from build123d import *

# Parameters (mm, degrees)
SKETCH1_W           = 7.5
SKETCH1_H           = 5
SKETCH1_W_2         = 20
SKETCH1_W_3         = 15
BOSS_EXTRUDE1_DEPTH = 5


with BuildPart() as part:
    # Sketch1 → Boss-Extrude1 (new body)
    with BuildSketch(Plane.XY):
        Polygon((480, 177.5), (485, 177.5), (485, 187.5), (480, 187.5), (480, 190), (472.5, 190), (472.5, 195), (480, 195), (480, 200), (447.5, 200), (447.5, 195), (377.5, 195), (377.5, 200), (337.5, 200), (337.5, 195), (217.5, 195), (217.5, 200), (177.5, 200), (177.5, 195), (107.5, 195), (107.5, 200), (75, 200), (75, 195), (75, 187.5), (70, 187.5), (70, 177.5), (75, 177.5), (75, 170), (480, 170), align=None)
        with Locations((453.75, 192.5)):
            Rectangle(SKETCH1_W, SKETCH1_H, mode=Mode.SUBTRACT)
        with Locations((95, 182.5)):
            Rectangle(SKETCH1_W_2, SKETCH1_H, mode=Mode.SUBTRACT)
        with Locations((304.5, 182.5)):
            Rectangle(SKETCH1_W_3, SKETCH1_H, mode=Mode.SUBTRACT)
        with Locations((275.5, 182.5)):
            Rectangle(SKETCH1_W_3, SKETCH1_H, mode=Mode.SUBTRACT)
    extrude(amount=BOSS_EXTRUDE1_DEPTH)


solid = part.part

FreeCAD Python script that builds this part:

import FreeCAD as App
import Part
import Sketcher
Q = App.Units.Quantity

doc = App.newDocument("Part")
body = doc.addObject("PartDesign::Body", "Body")

# Sketch on XY plane
sketch1 = body.newObject("Sketcher::SketchObject", "Sketch")
sketch1.AttachmentSupport = (doc.getObject("XY_Plane"), [""])
sketch1.MapMode = "FlatFace"
sketch1.addGeometry([
    Part.LineSegment(App.Vector(480, 177.5, 0), App.Vector(485, 177.5, 0)),  # 0
    Part.LineSegment(App.Vector(485, 177.5, 0), App.Vector(485, 187.5, 0)),  # 1
    Part.LineSegment(App.Vector(485, 187.5, 0), App.Vector(480, 187.5, 0)),  # 2
    Part.LineSegment(App.Vector(480, 187.5, 0), App.Vector(480, 190, 0)),  # 3
    Part.LineSegment(App.Vector(480, 190, 0), App.Vector(472.5, 190, 0)),  # 4
    Part.LineSegment(App.Vector(472.5, 190, 0), App.Vector(472.5, 195, 0)),  # 5
    Part.LineSegment(App.Vector(472.5, 195, 0), App.Vector(480, 195, 0)),  # 6
    Part.LineSegment(App.Vector(480, 195, 0), App.Vector(480, 200, 0)),  # 7
    Part.LineSegment(App.Vector(480, 200, 0), App.Vector(447.5, 200, 0)),  # 8
    Part.LineSegment(App.Vector(447.5, 200, 0), App.Vector(447.5, 195, 0)),  # 9
    Part.LineSegment(App.Vector(447.5, 195, 0), App.Vector(377.5, 195, 0)),  # 10
    Part.LineSegment(App.Vector(377.5, 195, 0), App.Vector(377.5, 200, 0)),  # 11
    Part.LineSegment(App.Vector(377.5, 200, 0), App.Vector(337.5, 200, 0)),  # 12
    Part.LineSegment(App.Vector(337.5, 200, 0), App.Vector(337.5, 195, 0)),  # 13
    Part.LineSegment(App.Vector(337.5, 195, 0), App.Vector(217.5, 195, 0)),  # 14
    Part.LineSegment(App.Vector(217.5, 195, 0), App.Vector(217.5, 200, 0)),  # 15
    Part.LineSegment(App.Vector(217.5, 200, 0), App.Vector(177.5, 200, 0)),  # 16
    Part.LineSegment(App.Vector(177.5, 200, 0), App.Vector(177.5, 195, 0)),  # 17
    Part.LineSegment(App.Vector(177.5, 195, 0), App.Vector(107.5, 195, 0)),  # 18
    Part.LineSegment(App.Vector(107.5, 195, 0), App.Vector(107.5, 200, 0)),  # 19
    Part.LineSegment(App.Vector(107.5, 200, 0), App.Vector(75, 200, 0)),  # 20
    Part.LineSegment(App.Vector(75, 200, 0), App.Vector(75, 187.5, 0)),  # 21
    Part.LineSegment(App.Vector(75, 187.5, 0), App.Vector(70, 187.5, 0)),  # 22
    Part.LineSegment(App.Vector(70, 187.5, 0), App.Vector(70, 177.5, 0)),  # 23
    Part.LineSegment(App.Vector(70, 177.5, 0), App.Vector(75, 177.5, 0)),  # 24
    Part.LineSegment(App.Vector(75, 177.5, 0), App.Vector(75, 170, 0)),  # 25
    Part.LineSegment(App.Vector(75, 170, 0), App.Vector(480, 170, 0)),  # 26
    Part.LineSegment(App.Vector(480, 170, 0), App.Vector(480, 177.5, 0)),  # 27
    Part.LineSegment(App.Vector(105, 180, 0), App.Vector(85, 180, 0)),  # 28
    Part.LineSegment(App.Vector(85, 180, 0), App.Vector(85, 185, 0)),  # 29
    Part.LineSegment(App.Vector(85, 185, 0), App.Vector(105, 185, 0)),  # 30
    Part.LineSegment(App.Vector(105, 185, 0), App.Vector(105, 180, 0)),  # 31
    Part.LineSegment(App.Vector(283, 180, 0), App.Vector(268, 180, 0)),  # 32
    Part.LineSegment(App.Vector(268, 180, 0), App.Vector(268, 185, 0)),  # 33
    Part.LineSegment(App.Vector(268, 185, 0), App.Vector(283, 185, 0)),  # 34
    Part.LineSegment(App.Vector(283, 185, 0), App.Vector(283, 180, 0)),  # 35
    Part.LineSegment(App.Vector(312, 180, 0), App.Vector(297, 180, 0)),  # 36
    Part.LineSegment(App.Vector(297, 180, 0), App.Vector(297, 185, 0)),  # 37
    Part.LineSegment(App.Vector(297, 185, 0), App.Vector(312, 185, 0)),  # 38
    Part.LineSegment(App.Vector(312, 185, 0), App.Vector(312, 180, 0)),  # 39
    Part.LineSegment(App.Vector(457.5, 190, 0), App.Vector(450, 190, 0)),  # 40
    Part.LineSegment(App.Vector(450, 190, 0), App.Vector(450, 195, 0)),  # 41
    Part.LineSegment(App.Vector(450, 195, 0), App.Vector(457.5, 195, 0)),  # 42
    Part.LineSegment(App.Vector(457.5, 195, 0), App.Vector(457.5, 190, 0)),  # 43
], False)
sketch1.addConstraint([
    Sketcher.Constraint("Coincident", 0, 2, 1, 1),
    Sketcher.Constraint("Coincident", 1, 2, 2, 1),
    Sketcher.Constraint("Coincident", 2, 2, 3, 1),
    Sketcher.Constraint("Coincident", 3, 2, 4, 1),
    Sketcher.Constraint("Coincident", 4, 2, 5, 1),
    Sketcher.Constraint("Coincident", 5, 2, 6, 1),
    Sketcher.Constraint("Coincident", 6, 2, 7, 1),
    Sketcher.Constraint("Coincident", 7, 2, 8, 1),
    Sketcher.Constraint("Coincident", 8, 2, 9, 1),
    Sketcher.Constraint("Coincident", 9, 2, 10, 1),
    Sketcher.Constraint("Coincident", 10, 2, 11, 1),
    Sketcher.Constraint("Coincident", 11, 2, 12, 1),
    Sketcher.Constraint("Coincident", 12, 2, 13, 1),
    Sketcher.Constraint("Coincident", 13, 2, 14, 1),
    Sketcher.Constraint("Coincident", 14, 2, 15, 1),
    Sketcher.Constraint("Coincident", 15, 2, 16, 1),
    Sketcher.Constraint("Coincident", 16, 2, 17, 1),
    Sketcher.Constraint("Coincident", 17, 2, 18, 1),
    Sketcher.Constraint("Coincident", 18, 2, 19, 1),
    Sketcher.Constraint("Coincident", 19, 2, 20, 1),
    Sketcher.Constraint("Coincident", 20, 2, 21, 1),
    Sketcher.Constraint("Coincident", 21, 2, 22, 1),
    Sketcher.Constraint("Coincident", 22, 2, 23, 1),
    Sketcher.Constraint("Coincident", 23, 2, 24, 1),
    Sketcher.Constraint("Coincident", 24, 2, 25, 1),
    Sketcher.Constraint("Coincident", 25, 2, 26, 1),
    Sketcher.Constraint("Coincident", 26, 2, 27, 1),
    Sketcher.Constraint("Coincident", 27, 2, 0, 1),
    Sketcher.Constraint("Coincident", 28, 2, 29, 1),
    Sketcher.Constraint("Coincident", 29, 2, 30, 1),
    Sketcher.Constraint("Coincident", 30, 2, 31, 1),
    Sketcher.Constraint("Coincident", 31, 2, 28, 1),
    Sketcher.Constraint("Coincident", 32, 2, 33, 1),
    Sketcher.Constraint("Coincident", 33, 2, 34, 1),
    Sketcher.Constraint("Coincident", 34, 2, 35, 1),
    Sketcher.Constraint("Coincident", 35, 2, 32, 1),
    Sketcher.Constraint("Coincident", 36, 2, 37, 1),
    Sketcher.Constraint("Coincident", 37, 2, 38, 1),
    Sketcher.Constraint("Coincident", 38, 2, 39, 1),
    Sketcher.Constraint("Coincident", 39, 2, 36, 1),
    Sketcher.Constraint("Coincident", 40, 2, 41, 1),
    Sketcher.Constraint("Coincident", 41, 2, 42, 1),
    Sketcher.Constraint("Coincident", 42, 2, 43, 1),
    Sketcher.Constraint("Coincident", 43, 2, 40, 1),
    Sketcher.Constraint("Horizontal", 0),
    Sketcher.Constraint("Vertical", 1),
    Sketcher.Constraint("Horizontal", 2),
    Sketcher.Constraint("Vertical", 3),
    Sketcher.Constraint("Horizontal", 4),
    Sketcher.Constraint("Vertical", 5),
    Sketcher.Constraint("Horizontal", 6),
    Sketcher.Constraint("Vertical", 7),
    Sketcher.Constraint("Horizontal", 8),
    Sketcher.Constraint("Vertical", 9),
    Sketcher.Constraint("Horizontal", 10),
    Sketcher.Constraint("Vertical", 11),
    Sketcher.Constraint("Horizontal", 12),
    Sketcher.Constraint("Vertical", 13),
    Sketcher.Constraint("Horizontal", 14),
    Sketcher.Constraint("Vertical", 15),
    Sketcher.Constraint("Horizontal", 16),
    Sketcher.Constraint("Vertical", 17),
    Sketcher.Constraint("Horizontal", 18),
    Sketcher.Constraint("Vertical", 19),
    Sketcher.Constraint("Horizontal", 20),
    Sketcher.Constraint("Vertical", 21),
    Sketcher.Constraint("Horizontal", 22),
    Sketcher.Constraint("Vertical", 23),
    Sketcher.Constraint("Horizontal", 24),
    Sketcher.Constraint("Vertical", 25),
    Sketcher.Constraint("Horizontal", 26),
    Sketcher.Constraint("Vertical", 27),
    Sketcher.Constraint("Horizontal", 28),
    Sketcher.Constraint("Vertical", 29),
    Sketcher.Constraint("Horizontal", 30),
    Sketcher.Constraint("Vertical", 31),
    Sketcher.Constraint("Horizontal", 32),
    Sketcher.Constraint("Vertical", 33),
    Sketcher.Constraint("Horizontal", 34),
    Sketcher.Constraint("Vertical", 35),
    Sketcher.Constraint("Horizontal", 36),
    Sketcher.Constraint("Vertical", 37),
    Sketcher.Constraint("Horizontal", 38),
    Sketcher.Constraint("Vertical", 39),
    Sketcher.Constraint("Horizontal", 40),
    Sketcher.Constraint("Vertical", 41),
    Sketcher.Constraint("Horizontal", 42),
    Sketcher.Constraint("Vertical", 43),
    Sketcher.Constraint("Horizontal", 6, 2, 9, 2),
    Sketcher.Constraint("Horizontal", 8, 2, 11, 2),
    Sketcher.Constraint("Horizontal", 10, 2, 13, 2),
    Sketcher.Constraint("Horizontal", 12, 2, 15, 2),
    Sketcher.Constraint("Horizontal", 14, 2, 17, 2),
    Sketcher.Constraint("Horizontal", 16, 2, 19, 2),
    Sketcher.Constraint("Horizontal", 2, 2, 21, 2),
    Sketcher.Constraint("Horizontal", 0, 2, 23, 2),
    Sketcher.Constraint("Horizontal", 31, 2, 32, 2),
    Sketcher.Constraint("Horizontal", 30, 2, 33, 2),
    Sketcher.Constraint("Horizontal", 35, 2, 36, 2),
    Sketcher.Constraint("Horizontal", 34, 2, 37, 2),
    Sketcher.Constraint("Horizontal", 4, 2, 40, 2),
    Sketcher.Constraint("Horizontal", 18, 2, 41, 2),
    Sketcher.Constraint("Vertical", 3, 2, 6, 2),
    Sketcher.Constraint("Vertical", 21, 2, 24, 2),
    Sketcher.Constraint("Vertical", 7, 2, 26, 2),
    Sketcher.Constraint("Equal", 12, 16),
    Sketcher.Constraint("Equal", 10, 18),
    Sketcher.Constraint("Equal", 8, 20),
    Sketcher.Constraint("Equal", 2, 22),
    Sketcher.Constraint("Equal", 34, 36),
    Sketcher.Constraint("Equal", 6, 40),
    Sketcher.Constraint("Equal", 24, 5),
    Sketcher.Constraint("Equal", 5, 7),
    Sketcher.Constraint("Equal", 42, 25),
    Sketcher.Constraint("Equal", 19, 29),
    Sketcher.Constraint("DistanceX", 0, 1, 0, 2, Q("5 mm")),
    Sketcher.Constraint("DistanceX", 10, 2, 10, 1, Q("70 mm")),
    Sketcher.Constraint("DistanceX", 12, 2, 12, 1, Q("40 mm")),
    Sketcher.Constraint("DistanceX", 14, 2, 14, 1, Q("120 mm")),
    Sketcher.Constraint("DistanceX", 26, 1, 26, 2, Q("405 mm")),
    Sketcher.Constraint("DistanceX", 28, 2, 28, 1, Q("20 mm")),
    Sketcher.Constraint("DistanceX", 32, 2, 32, 1, Q("15 mm")),
    Sketcher.Constraint("DistanceY", 1, 1, 1, 2, Q("10 mm")),
    Sketcher.Constraint("DistanceX", 4, 2, 4, 1, Q("7.5 mm")),
    Sketcher.Constraint("DistanceY", 3, 1, 3, 2, Q("2.5 mm")),
    Sketcher.Constraint("DistanceX", -1, 1, 0, 2, Q("485 mm")),
    Sketcher.Constraint("DistanceY", -1, 1, 3, 2, Q("190 mm")),
    Sketcher.Constraint("DistanceX", -1, 1, 28, 2, Q("85 mm")),
    Sketcher.Constraint("DistanceY", -1, 1, 28, 2, Q("180 mm")),
    Sketcher.Constraint("DistanceX", -1, 1, 32, 2, Q("268 mm")),
    Sketcher.Constraint("DistanceX", -1, 1, 36, 2, Q("297 mm")),
    Sketcher.Constraint("DistanceX", -1, 1, 40, 2, Q("450 mm")),
])
pad1 = body.newObject("PartDesign::Pad", "Pad")
pad1.Profile = sketch1
pad1.Length = 5

doc.recompute()
